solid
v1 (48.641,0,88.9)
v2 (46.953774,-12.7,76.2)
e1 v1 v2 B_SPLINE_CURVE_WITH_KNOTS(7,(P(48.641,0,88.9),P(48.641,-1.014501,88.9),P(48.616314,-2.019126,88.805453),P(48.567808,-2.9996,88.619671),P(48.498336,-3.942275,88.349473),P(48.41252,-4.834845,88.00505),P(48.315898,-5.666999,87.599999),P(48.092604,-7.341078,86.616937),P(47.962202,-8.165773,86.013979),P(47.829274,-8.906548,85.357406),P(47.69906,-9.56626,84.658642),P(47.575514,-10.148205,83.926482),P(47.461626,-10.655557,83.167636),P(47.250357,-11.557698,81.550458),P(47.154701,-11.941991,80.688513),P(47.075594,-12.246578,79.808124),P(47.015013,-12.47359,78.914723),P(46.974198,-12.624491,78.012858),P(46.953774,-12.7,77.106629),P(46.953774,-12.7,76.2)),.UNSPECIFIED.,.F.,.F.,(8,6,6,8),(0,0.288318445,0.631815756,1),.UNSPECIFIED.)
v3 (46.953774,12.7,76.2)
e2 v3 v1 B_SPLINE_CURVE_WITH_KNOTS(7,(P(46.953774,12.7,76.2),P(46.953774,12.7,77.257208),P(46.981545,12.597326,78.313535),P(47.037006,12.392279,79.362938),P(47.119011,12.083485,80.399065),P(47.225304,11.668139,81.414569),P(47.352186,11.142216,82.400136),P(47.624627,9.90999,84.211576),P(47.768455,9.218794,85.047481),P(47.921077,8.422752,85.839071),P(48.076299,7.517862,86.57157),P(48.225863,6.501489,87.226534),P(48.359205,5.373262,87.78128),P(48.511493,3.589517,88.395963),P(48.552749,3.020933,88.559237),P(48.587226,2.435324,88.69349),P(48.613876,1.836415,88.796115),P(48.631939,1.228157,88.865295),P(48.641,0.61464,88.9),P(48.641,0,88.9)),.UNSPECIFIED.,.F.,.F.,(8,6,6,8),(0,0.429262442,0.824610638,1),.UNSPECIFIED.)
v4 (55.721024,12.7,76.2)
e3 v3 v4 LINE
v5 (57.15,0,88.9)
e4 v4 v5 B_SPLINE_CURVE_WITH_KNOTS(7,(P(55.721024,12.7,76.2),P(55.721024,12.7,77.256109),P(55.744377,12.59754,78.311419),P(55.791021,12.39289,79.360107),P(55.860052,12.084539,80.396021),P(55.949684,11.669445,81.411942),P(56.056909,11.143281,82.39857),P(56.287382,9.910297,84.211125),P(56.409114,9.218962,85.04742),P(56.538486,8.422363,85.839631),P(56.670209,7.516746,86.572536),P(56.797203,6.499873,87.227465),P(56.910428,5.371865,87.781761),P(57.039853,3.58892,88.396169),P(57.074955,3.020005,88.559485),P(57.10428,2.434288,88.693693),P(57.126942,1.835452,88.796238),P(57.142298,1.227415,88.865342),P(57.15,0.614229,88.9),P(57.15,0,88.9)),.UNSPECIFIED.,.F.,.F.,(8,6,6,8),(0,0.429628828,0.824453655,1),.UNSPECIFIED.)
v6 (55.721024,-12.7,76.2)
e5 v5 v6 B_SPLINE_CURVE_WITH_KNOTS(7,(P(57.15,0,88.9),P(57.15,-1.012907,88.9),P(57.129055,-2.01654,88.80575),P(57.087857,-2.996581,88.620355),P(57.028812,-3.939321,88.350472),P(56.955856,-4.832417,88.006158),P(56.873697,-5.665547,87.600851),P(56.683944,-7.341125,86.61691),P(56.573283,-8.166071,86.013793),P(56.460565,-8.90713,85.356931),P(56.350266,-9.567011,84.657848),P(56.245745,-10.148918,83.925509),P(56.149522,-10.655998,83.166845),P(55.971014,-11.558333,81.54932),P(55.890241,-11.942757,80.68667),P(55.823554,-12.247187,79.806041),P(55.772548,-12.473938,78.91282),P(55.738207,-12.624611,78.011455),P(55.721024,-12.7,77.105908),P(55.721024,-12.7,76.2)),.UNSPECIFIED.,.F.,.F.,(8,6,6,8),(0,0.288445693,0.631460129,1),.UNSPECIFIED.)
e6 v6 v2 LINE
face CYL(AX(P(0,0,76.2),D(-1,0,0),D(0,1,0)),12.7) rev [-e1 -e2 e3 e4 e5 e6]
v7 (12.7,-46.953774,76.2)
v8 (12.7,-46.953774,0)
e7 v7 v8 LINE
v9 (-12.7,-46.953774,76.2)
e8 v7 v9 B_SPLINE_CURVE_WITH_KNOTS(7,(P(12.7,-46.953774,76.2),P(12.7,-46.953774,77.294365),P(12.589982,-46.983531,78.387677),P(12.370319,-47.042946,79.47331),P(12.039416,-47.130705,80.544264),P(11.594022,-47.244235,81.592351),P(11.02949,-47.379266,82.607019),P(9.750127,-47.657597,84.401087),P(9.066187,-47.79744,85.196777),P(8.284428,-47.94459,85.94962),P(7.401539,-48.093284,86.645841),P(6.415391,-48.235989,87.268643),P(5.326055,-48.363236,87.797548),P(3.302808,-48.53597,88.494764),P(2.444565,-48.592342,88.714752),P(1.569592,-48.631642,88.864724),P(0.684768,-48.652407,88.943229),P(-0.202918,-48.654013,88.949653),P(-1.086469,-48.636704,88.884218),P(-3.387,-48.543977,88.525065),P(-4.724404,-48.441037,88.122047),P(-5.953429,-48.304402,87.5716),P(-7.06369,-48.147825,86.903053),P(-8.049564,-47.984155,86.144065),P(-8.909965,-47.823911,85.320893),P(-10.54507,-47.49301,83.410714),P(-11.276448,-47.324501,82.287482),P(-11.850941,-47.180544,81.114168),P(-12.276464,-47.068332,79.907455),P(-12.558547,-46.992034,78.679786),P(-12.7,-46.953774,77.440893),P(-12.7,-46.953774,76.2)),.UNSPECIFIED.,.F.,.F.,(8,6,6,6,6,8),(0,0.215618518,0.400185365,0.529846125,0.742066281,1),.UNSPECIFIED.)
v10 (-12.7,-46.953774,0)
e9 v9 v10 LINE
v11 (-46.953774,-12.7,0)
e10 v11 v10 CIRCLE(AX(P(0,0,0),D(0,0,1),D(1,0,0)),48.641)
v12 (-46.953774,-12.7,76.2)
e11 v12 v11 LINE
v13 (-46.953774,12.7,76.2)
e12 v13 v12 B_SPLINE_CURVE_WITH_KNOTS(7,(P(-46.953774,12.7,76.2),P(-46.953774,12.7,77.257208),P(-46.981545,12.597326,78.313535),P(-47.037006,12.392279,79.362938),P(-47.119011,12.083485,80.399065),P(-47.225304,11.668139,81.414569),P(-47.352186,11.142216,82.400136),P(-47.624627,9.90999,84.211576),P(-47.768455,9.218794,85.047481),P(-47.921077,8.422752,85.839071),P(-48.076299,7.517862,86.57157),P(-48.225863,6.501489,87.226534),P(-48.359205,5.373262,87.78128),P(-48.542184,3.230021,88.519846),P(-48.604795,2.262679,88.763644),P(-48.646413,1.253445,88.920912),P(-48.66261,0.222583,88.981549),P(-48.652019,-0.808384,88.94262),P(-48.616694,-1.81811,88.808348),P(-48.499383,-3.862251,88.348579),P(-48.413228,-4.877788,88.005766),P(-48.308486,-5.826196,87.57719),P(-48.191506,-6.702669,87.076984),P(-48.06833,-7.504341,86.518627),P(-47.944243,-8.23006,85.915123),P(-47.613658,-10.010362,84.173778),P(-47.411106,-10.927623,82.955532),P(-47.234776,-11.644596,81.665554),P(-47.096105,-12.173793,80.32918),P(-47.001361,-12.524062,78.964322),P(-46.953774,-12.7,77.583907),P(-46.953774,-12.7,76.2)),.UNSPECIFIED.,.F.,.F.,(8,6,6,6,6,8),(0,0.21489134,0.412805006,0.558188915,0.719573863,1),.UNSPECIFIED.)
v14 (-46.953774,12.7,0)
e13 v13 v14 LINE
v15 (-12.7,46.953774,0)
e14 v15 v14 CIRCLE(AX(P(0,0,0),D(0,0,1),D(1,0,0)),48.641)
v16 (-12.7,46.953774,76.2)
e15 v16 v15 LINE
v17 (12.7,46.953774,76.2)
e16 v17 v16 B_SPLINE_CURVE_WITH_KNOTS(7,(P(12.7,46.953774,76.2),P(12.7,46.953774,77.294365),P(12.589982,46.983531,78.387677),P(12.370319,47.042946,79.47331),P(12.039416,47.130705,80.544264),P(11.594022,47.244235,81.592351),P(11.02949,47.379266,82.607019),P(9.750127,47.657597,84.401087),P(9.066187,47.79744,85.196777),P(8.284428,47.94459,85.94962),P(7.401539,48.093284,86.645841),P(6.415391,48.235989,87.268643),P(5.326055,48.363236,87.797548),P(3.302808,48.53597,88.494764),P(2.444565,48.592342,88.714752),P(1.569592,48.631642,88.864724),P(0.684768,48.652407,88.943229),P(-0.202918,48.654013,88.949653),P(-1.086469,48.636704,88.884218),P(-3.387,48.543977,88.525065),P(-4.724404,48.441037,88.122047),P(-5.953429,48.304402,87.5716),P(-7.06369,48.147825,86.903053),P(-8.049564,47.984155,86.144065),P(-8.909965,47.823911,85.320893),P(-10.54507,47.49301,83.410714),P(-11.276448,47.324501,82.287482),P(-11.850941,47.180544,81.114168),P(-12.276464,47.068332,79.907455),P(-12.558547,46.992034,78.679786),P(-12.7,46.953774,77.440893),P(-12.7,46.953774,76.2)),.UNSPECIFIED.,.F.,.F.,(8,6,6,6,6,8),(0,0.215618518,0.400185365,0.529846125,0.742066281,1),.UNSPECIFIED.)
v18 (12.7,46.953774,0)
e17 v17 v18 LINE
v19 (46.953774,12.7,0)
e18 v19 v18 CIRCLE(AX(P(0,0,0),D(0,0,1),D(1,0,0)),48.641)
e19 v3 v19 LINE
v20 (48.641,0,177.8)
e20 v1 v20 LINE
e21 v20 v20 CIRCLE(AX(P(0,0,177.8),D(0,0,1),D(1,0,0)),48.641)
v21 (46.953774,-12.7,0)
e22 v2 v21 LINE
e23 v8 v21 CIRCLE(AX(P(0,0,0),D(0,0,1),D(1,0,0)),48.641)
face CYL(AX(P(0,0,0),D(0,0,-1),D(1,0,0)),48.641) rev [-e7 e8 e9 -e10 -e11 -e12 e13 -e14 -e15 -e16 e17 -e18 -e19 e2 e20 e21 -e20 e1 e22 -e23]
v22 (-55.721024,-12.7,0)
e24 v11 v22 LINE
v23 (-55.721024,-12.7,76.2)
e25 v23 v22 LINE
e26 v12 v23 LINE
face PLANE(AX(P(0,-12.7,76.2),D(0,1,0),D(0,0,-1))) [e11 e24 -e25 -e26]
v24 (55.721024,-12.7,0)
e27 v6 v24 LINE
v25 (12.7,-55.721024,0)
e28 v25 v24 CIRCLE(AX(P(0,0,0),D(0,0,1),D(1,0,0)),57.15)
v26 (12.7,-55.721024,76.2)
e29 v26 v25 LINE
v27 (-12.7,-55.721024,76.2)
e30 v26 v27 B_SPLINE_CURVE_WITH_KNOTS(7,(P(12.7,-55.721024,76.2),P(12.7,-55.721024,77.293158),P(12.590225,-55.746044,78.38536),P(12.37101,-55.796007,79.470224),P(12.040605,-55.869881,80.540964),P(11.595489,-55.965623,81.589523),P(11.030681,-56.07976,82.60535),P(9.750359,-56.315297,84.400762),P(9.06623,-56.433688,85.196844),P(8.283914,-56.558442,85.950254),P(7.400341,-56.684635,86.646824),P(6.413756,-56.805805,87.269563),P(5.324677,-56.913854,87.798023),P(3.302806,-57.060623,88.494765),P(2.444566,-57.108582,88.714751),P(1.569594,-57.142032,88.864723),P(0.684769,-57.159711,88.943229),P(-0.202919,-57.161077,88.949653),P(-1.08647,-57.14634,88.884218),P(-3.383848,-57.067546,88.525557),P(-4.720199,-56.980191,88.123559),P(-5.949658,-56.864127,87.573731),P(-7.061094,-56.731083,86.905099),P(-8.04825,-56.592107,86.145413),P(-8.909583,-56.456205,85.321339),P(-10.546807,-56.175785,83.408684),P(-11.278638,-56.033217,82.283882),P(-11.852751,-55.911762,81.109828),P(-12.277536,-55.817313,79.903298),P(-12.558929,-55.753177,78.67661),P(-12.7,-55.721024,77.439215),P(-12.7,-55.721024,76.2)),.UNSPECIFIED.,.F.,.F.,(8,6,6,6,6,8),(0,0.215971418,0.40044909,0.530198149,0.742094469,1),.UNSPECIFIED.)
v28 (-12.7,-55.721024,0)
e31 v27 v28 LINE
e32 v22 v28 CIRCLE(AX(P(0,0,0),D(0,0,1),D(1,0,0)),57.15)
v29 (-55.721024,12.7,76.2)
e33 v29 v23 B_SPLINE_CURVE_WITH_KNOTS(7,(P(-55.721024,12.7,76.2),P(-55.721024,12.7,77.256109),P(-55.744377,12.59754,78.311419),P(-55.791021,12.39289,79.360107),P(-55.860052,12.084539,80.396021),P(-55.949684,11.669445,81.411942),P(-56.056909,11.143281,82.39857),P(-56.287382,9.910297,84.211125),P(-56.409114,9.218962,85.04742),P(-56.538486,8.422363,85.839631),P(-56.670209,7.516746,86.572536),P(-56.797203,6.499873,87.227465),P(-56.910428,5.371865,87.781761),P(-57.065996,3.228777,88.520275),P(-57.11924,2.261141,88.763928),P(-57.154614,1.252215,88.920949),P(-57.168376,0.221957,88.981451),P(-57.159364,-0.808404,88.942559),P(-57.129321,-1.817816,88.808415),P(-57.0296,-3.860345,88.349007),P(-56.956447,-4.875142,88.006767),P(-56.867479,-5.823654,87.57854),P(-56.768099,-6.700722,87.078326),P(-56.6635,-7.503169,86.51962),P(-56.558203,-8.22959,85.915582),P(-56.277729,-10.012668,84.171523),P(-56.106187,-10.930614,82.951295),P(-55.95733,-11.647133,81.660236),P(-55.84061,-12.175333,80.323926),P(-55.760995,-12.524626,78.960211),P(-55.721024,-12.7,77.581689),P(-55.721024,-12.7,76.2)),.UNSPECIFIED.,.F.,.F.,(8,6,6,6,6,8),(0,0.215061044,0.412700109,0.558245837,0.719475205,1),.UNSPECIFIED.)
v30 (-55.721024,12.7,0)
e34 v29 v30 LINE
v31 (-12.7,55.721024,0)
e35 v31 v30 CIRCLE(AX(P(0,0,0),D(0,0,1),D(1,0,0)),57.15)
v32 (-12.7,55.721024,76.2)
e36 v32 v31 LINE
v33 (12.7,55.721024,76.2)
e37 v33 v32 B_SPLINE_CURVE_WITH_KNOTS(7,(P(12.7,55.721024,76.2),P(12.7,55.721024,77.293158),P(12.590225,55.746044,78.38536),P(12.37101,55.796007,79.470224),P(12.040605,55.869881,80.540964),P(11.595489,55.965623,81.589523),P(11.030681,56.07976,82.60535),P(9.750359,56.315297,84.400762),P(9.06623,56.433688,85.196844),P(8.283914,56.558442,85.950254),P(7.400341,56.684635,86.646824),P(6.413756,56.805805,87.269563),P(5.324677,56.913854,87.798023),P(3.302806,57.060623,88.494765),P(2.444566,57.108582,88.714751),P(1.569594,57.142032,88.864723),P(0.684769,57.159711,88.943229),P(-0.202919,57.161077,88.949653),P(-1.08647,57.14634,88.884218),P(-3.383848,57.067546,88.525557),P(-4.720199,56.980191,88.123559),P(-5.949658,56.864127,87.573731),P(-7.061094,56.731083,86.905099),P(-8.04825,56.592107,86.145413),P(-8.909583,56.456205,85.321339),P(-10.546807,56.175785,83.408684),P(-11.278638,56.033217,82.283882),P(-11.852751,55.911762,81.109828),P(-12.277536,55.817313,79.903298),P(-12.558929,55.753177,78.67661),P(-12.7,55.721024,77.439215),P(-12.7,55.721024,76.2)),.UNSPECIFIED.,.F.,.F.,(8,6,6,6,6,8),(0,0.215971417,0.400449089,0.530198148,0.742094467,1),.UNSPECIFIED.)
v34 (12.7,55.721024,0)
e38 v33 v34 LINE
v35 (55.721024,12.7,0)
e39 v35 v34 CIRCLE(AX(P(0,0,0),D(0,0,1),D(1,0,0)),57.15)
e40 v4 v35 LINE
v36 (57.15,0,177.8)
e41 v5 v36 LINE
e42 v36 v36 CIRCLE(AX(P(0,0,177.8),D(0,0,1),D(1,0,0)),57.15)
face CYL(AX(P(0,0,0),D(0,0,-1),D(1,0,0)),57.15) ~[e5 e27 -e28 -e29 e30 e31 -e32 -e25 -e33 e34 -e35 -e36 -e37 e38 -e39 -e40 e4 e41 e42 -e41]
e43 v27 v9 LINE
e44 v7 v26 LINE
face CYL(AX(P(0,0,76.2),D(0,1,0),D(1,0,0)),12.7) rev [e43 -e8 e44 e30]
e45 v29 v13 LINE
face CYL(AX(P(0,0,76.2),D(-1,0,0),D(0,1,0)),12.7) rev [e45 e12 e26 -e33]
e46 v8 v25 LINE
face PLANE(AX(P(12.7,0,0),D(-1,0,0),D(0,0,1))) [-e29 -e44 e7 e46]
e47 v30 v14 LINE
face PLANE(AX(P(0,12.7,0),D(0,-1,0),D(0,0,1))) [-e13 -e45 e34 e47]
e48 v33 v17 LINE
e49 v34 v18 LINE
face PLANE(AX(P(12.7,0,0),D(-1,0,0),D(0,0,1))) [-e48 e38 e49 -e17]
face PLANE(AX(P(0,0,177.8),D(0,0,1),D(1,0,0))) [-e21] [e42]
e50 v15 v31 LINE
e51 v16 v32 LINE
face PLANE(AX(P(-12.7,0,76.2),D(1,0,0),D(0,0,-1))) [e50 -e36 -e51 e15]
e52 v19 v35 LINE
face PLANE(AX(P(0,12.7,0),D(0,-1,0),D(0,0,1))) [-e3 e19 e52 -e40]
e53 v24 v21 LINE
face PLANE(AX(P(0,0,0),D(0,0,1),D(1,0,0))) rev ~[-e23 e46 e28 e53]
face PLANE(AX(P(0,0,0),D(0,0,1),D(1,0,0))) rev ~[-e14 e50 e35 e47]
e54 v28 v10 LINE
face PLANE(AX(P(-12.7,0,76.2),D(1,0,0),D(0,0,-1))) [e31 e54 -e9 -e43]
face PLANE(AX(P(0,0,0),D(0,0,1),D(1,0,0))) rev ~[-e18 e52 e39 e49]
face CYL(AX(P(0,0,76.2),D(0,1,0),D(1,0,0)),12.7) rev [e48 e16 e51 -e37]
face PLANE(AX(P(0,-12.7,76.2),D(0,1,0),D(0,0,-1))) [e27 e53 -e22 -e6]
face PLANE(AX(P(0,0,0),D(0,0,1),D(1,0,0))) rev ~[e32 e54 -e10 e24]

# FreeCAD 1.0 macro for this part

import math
import FreeCAD as App
import Part
import Sketcher

V = App.Vector
Q = App.Units.Quantity

doc = App.newDocument("Part")
params = doc.addObject("Spreadsheet::Sheet", "Params")
for row, (alias, value) in enumerate([
    ("sketch1_diameter", "4.5 in"),
    ("sketch1_diameter2", "3.83 in"),
    ("pad1_length", "7 in"),
    ("sketch2_radius", "0.5 in"),
    ("sketch2_height", "3 in"),
    ("pocket1_length", "392.615335 mm"),
], start=1):
    params.set(f"A{row}", alias)
    params.set(f"B{row}", "=" + value)
    params.setAlias(f"B{row}", alias)

body = doc.addObject("PartDesign::Body", "Body")

# Sketch on XY plane
sketch1 = body.newObject("Sketcher::SketchObject", "Sketch")
sketch1.AttachmentSupport = (doc.getObject("XY_Plane"), [""])
sketch1.MapMode = "FlatFace"
sketch1.addGeometry([
    Part.Circle(V(0, 0, 0), V(0, 0, 1), 57),
    Part.Circle(V(0, 0, 0), V(0, 0, 1), 49),
], False)
sketch1.addConstraint([
    Sketcher.Constraint("Coincident", 0, 3, -1, 1),
    Sketcher.Constraint("Coincident", 1, 3, -1, 1),
    Sketcher.Constraint("Diameter", 0, Q("4.5 in")),
    Sketcher.Constraint("Diameter", 1, Q("3.83 in")),
])
sketch1.setExpression("Constraints[2]", "Params.sketch1_diameter")
sketch1.setExpression("Constraints[3]", "Params.sketch1_diameter2")
pad1 = body.newObject("PartDesign::Pad", "Pad")
pad1.Profile = sketch1
pad1.setExpression("Length", "Params.pad1_length")

# Sketch on XZ plane
sketch2 = body.newObject("Sketcher::SketchObject", "Sketch001")
sketch2.AttachmentSupport = (doc.getObject("XZ_Plane"), [""])
sketch2.MapMode = "FlatFace"
sketch2.addGeometry([
    Part.LineSegment(V(13, 0, 0), V(-13, 0, 0)),
    Part.LineSegment(V(-13, 0, 0), V(-13, 76, 0)),
    Part.ArcOfCircle(Part.Circle(V(0, 76, 0), V(0, 0, 1), 13), math.radians(0), math.radians(180)),
    Part.LineSegment(V(13, 76, 0), V(13, 0, 0)),
], False)
sketch2.addConstraint([
    Sketcher.Constraint("Coincident", 0, 2, 1, 1),
    Sketcher.Constraint("Tangent", 1, 2, 2, 2),
    Sketcher.Constraint("Tangent", 2, 1, 3, 1),
    Sketcher.Constraint("Coincident", 3, 2, 0, 1),
    Sketcher.Constraint("Horizontal", 0),
    Sketcher.Constraint("Vertical", 1),
    Sketcher.Constraint("Vertical", 3),
    Sketcher.Constraint("Symmetric", 0, 2, 3, 2, -1, 1),
    Sketcher.Constraint("Radius", 2, Q("0.5 in")),
    Sketcher.Constraint("DistanceY", 1, 1, 1, 2, Q("3 in")),
])
sketch2.setExpression("Constraints[8]", "Params.sketch2_radius")
sketch2.setExpression("Constraints[9]", "Params.sketch2_height")
pocket1 = body.newObject("PartDesign::Pocket", "Pocket")
pocket1.Profile = sketch2
pocket1.setExpression("Length", "Params.pocket1_length")
pocket1.Midplane = True
doc.recompute()

polarpattern = body.newObject("PartDesign::PolarPattern", "PolarPattern")
polarpattern.Originals = [pocket1]
polarpattern.Axis = (doc.getObject("Z_Axis"), [""])
polarpattern.Angle = 90
polarpattern.Occurrences = 2
body.Tip = polarpattern

doc.recompute()
